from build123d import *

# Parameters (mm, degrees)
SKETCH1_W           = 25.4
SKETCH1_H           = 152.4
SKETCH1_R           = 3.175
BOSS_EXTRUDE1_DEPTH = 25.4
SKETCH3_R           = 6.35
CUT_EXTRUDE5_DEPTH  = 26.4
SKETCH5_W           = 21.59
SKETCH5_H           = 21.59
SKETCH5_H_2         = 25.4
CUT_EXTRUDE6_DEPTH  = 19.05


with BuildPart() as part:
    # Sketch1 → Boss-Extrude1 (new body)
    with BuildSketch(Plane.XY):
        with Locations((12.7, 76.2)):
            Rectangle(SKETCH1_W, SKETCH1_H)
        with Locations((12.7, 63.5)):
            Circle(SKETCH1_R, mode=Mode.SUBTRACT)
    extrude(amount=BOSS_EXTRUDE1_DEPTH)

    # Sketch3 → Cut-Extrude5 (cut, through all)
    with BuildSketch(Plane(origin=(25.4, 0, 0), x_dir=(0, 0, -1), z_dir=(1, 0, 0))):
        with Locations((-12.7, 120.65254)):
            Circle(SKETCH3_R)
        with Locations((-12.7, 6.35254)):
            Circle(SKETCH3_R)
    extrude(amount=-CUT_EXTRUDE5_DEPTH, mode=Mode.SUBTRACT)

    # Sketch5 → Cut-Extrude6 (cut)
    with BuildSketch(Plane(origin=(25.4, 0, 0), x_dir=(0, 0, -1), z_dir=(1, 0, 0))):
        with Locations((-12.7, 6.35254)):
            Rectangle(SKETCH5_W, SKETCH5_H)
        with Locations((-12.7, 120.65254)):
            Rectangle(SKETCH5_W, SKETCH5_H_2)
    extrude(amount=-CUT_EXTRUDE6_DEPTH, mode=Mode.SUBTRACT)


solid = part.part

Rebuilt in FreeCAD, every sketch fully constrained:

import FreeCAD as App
import Part
import Sketcher
from FreeCAD import Vector
Q = App.Units.Quantity

doc = App.newDocument("Part")
body = doc.addObject("PartDesign::Body", "Body")

sketch1 = doc.addObject("Sketcher::SketchObject", "Sketch")
body.addObject(sketch1)
sketch1.AttachmentSupport = (doc.XY_Plane, [""])
sketch1.MapMode = "FlatFace"
sketch1.addGeometry([
    Part.LineSegment(Vector(0, 152.4, 0), Vector(0, 0, 0)),
    Part.LineSegment(Vector(0, 0, 0), Vector(25.4, 0, 0)),
    Part.LineSegment(Vector(25.4, 0, 0), Vector(25.4, 152.4, 0)),
    Part.LineSegment(Vector(25.4, 152.4, 0), Vector(0, 152.4, 0)),
    Part.Circle(Vector(12.7, 63.5, 0), Vector(0, 0, 1), 3.2),
], False)
sketch1.addConstraint([
    Sketcher.Constraint("Coincident", 0, 2, 1, 1),
    Sketcher.Constraint("Coincident", 1, 2, 2, 1),
    Sketcher.Constraint("Coincident", 2, 2, 3, 1),
    Sketcher.Constraint("Coincident", 3, 2, 0, 1),
    Sketcher.Constraint("Vertical", 0),
    Sketcher.Constraint("Horizontal", 1),
    Sketcher.Constraint("Vertical", 2),
    Sketcher.Constraint("Horizontal", 3),
    Sketcher.Constraint("Coincident", 0, 2, -1, 1),
    Sketcher.Constraint("Diameter", 4, Q("0.25 in")),
    Sketcher.Constraint("DistanceX", 1, 1, 1, 2, Q("1 in")),
    Sketcher.Constraint("DistanceY", 0, 2, 0, 1, Q("6 in")),
    Sketcher.Constraint("DistanceX", -1, 1, 4, 3, Q("0.5 in")),
    Sketcher.Constraint("DistanceY", -1, 1, 4, 3, Q("2.5 in")),
])
pad1 = doc.addObject("PartDesign::Pad", "Pad")
body.addObject(pad1)
pad1.Profile = sketch1
pad1.Length = Q("1 in")

sketch2 = doc.addObject("Sketcher::SketchObject", "Sketch001")
body.addObject(sketch2)
sketch2.AttachmentSupport = (doc.YZ_Plane, [""])
sketch2.MapMode = "FlatFace"
sketch2.AttachmentOffset = App.Placement(Vector(0, 0, 1 * 25.4), App.Rotation())
sketch2.addGeometry([
    Part.Circle(Vector(121, 13, 0), Vector(0, 0, 1), 6),
    Part.Circle(Vector(6, 13, 0), Vector(0, 0, 1), 6),
], False)
sketch2.addConstraint([
    Sketcher.Constraint("Equal", 0, 1),
    Sketcher.Constraint("Horizontal", 0, 3, 1, 3),
    Sketcher.Constraint("Diameter", 0, Q("0.5 in")),
    Sketcher.Constraint("DistanceY", -1, 1, 0, 3, Q("0.5 in")),
    Sketcher.Constraint("DistanceX", 1, 3, 0, 3, Q("4.5 in")),
    Sketcher.Constraint("DistanceX", -1, 1, 0, 3, Q("4.7501 in")),
])
pocket1 = doc.addObject("PartDesign::Pocket", "Pocket")
body.addObject(pocket1)
pocket1.Profile = sketch2
pocket1.Type = "ThroughAll"

sketch3 = doc.addObject("Sketcher::SketchObject", "Sketch002")
body.addObject(sketch3)
sketch3.AttachmentSupport = (doc.YZ_Plane, [""])
sketch3.MapMode = "FlatFace"
sketch3.AttachmentOffset = App.Placement(Vector(0, 0, 1 * 25.4), App.Rotation())
sketch3.addGeometry([
    Part.LineSegment(Vector(17, 23, 0), Vector(-4, 23, 0)),
    Part.LineSegment(Vector(-4, 23, 0), Vector(-4, 2, 0)),
    Part.LineSegment(Vector(-4, 2, 0), Vector(17, 2, 0)),
    Part.LineSegment(Vector(17, 2, 0), Vector(17, 23, 0)),
    Part.LineSegment(Vector(133, 23, 0), Vector(108, 23, 0)),
    Part.LineSegment(Vector(108, 23, 0), Vector(108, 2, 0)),
    Part.LineSegment(Vector(108, 2, 0), Vector(133, 2, 0)),
    Part.LineSegment(Vector(133, 2, 0), Vector(133, 23, 0)),
], False)
sketch3.addConstraint([
    Sketcher.Constraint("Coincident", 0, 2, 1, 1),
    Sketcher.Constraint("Coincident", 1, 2, 2, 1),
    Sketcher.Constraint("Coincident", 2, 2, 3, 1),
    Sketcher.Constraint("Coincident", 3, 2, 0, 1),
    Sketcher.Constraint("Coincident", 4, 2, 5, 1),
    Sketcher.Constraint("Coincident", 5, 2, 6, 1),
    Sketcher.Constraint("Coincident", 6, 2, 7, 1),
    Sketcher.Constraint("Coincident", 7, 2, 4, 1),
    Sketcher.Constraint("Horizontal", 0),
    Sketcher.Constraint("Vertical", 1),
    Sketcher.Constraint("Horizontal", 2),
    Sketcher.Constraint("Vertical", 3),
    Sketcher.Constraint("Horizontal", 4),
    Sketcher.Constraint("Vertical", 5),
    Sketcher.Constraint("Horizontal", 6),
    Sketcher.Constraint("Vertical", 7),
    Sketcher.Constraint("Horizontal", 3, 2, 4, 2),
    Sketcher.Constraint("Horizontal", 2, 2, 5, 2),
    Sketcher.Constraint("Equal", 2, 1),
    Sketcher.Constraint("DistanceX", 4, 2, 4, 1, Q("1 in")),
    Sketcher.Constraint("DistanceX", 0, 2, 0, 1, Q("0.85 in")),
    Sketcher.Constraint("DistanceY", -1, 1, 0, 2, Q("0.925 in")),
    Sketcher.Constraint("DistanceX", 3, 2, 4, 2, Q("3.575 in")),
    Sketcher.Constraint("DistanceX", 0, 2, -1, 1, Q("0.1749 in")),
])
pocket2 = doc.addObject("PartDesign::Pocket", "Pocket001")
body.addObject(pocket2)
pocket2.Profile = sketch3
pocket2.Length = Q("0.75 in")

doc.recompute()
